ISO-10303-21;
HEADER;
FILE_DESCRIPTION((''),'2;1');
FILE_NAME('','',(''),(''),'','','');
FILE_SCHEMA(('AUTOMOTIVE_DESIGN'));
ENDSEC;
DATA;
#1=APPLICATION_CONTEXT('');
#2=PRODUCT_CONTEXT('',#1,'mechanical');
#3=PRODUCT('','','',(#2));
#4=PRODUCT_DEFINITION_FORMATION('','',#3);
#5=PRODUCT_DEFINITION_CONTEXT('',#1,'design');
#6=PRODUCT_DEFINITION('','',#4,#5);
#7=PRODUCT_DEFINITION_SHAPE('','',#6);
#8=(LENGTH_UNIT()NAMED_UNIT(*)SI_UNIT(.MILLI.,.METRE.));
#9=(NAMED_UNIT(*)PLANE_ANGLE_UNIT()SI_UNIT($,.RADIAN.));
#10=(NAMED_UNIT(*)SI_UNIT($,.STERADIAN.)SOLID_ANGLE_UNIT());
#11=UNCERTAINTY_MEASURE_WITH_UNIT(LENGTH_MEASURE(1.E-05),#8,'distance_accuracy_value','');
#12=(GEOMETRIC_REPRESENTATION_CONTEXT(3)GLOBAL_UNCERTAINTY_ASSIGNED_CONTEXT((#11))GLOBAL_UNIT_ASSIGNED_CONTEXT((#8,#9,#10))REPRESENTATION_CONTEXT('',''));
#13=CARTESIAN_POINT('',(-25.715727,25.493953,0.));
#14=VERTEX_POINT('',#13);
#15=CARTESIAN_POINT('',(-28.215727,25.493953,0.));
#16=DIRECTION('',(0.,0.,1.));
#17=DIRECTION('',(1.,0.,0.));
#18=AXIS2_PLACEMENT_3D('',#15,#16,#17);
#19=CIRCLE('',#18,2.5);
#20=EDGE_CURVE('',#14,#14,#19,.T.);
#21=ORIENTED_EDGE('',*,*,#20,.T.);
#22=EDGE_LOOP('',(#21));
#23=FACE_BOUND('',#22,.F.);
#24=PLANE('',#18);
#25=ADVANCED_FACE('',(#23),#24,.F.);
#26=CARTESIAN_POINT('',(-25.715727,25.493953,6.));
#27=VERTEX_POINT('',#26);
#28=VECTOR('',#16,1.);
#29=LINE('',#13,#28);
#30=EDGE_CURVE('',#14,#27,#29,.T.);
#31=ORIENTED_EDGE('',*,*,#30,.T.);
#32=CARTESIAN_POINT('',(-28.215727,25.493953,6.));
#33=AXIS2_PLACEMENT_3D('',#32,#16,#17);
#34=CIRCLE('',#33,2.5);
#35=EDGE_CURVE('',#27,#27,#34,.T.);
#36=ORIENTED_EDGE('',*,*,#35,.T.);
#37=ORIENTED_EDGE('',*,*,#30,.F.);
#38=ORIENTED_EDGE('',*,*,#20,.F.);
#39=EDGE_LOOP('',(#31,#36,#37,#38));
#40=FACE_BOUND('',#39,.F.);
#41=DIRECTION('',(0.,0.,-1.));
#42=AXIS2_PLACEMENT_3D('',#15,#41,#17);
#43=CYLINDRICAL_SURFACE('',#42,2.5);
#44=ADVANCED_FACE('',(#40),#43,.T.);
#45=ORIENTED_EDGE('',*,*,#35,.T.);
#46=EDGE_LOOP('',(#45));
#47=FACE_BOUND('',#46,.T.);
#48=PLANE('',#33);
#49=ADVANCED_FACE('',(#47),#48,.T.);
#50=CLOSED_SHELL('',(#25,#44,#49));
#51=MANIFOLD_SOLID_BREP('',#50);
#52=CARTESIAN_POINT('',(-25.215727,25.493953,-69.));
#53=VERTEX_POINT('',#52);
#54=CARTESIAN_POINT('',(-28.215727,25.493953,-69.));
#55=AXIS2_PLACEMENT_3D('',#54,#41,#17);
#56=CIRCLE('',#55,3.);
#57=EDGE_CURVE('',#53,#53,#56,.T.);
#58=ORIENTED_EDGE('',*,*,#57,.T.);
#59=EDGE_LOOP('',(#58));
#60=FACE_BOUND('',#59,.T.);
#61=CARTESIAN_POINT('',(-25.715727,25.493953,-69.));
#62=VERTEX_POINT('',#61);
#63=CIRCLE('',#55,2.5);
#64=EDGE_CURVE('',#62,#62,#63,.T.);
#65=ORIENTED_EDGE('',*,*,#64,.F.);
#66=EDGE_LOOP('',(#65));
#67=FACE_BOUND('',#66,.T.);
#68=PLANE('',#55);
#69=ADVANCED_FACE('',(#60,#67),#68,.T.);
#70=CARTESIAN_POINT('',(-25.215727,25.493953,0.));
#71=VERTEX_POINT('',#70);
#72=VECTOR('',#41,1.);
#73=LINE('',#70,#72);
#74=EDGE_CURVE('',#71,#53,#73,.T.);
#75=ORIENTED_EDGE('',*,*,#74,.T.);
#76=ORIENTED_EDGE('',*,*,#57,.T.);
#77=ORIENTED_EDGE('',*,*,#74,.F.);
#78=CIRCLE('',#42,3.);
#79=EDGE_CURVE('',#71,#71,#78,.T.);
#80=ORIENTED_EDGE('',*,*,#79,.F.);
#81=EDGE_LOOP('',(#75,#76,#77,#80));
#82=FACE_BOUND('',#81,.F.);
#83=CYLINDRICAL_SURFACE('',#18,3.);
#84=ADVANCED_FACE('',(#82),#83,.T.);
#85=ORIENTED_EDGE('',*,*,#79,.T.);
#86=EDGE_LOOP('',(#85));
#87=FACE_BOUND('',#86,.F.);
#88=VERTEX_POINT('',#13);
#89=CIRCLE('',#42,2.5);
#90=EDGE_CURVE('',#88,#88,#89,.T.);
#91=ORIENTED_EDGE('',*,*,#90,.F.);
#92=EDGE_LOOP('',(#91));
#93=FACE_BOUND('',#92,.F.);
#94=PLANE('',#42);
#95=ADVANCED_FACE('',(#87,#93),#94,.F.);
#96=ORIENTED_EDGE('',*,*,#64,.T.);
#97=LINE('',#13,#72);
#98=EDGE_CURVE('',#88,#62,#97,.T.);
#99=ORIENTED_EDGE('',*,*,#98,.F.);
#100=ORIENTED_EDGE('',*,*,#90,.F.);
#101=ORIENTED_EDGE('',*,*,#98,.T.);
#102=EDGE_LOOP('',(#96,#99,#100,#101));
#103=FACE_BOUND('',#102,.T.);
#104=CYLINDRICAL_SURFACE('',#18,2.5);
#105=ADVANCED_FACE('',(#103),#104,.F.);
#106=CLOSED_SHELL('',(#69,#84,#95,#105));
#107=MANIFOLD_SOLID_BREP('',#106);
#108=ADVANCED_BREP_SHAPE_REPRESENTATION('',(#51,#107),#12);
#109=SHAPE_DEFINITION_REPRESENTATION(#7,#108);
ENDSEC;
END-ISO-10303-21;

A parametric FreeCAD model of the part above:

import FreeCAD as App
import Part
import Sketcher

V = App.Vector
Q = App.Units.Quantity

doc = App.newDocument("Part")
params = doc.addObject("Spreadsheet::Sheet", "Params")
for row, (alias, value) in enumerate([
    ("sketch1_diameter", "5 mm"),
    ("pad1_length", "6 mm"),
    ("sketch2_diameter", "6 mm"),
    ("sketch2_diameter2", "5 mm"),
    ("pad2_length", "69 mm"),
], start=1):
    params.set(f"A{row}", alias)
    params.set(f"B{row}", "=" + value)
    params.setAlias(f"B{row}", alias)

body = doc.addObject("PartDesign::Body", "Body")

sketch1 = body.newObject("Sketcher::SketchObject", "Sketch")
sketch1.AttachmentSupport = (doc.getObject("XY_Plane"), [""])
sketch1.MapMode = "FlatFace"
sketch1.addGeometry(Part.Circle(V(-28.215727, 25.493953, 0), V(0, 0, 1), 2.5), False)
sketch1.addConstraint(Sketcher.Constraint("Diameter", 0, Q("5 mm")))
sketch1.addConstraint(Sketcher.Constraint("DistanceX", 0, 3, -1, 1, Q("28.215727 mm")))
sketch1.addConstraint(Sketcher.Constraint("DistanceY", -1, 1, 0, 3, Q("25.493953 mm")))
sketch1.setExpression("Constraints[0]", "Params.sketch1_diameter")
pad1 = body.newObject("PartDesign::Pad", "Pad")
pad1.Profile = sketch1
pad1.setExpression("Length", "Params.pad1_length")
body2 = doc.addObject("PartDesign::Body", "Body001")

sketch2 = body2.newObject("Sketcher::SketchObject", "Sketch001")
sketch2.AttachmentSupport = (doc.getObject("XY_Plane001"), [""])
sketch2.MapMode = "FlatFace"
sketch2.addGeometry(Part.Circle(V(-28.215727, 25.493953, 0), V(0, 0, 1), 3), False)
sketch2.addGeometry(Part.Circle(V(-28.215727, 25.493953, 0), V(0, 0, 1), 2.5), False)
sketch2.addConstraint(Sketcher.Constraint("Coincident", 1, 3, 0, 3))
sketch2.addConstraint(Sketcher.Constraint("Diameter", 0, Q("6 mm")))
sketch2.addConstraint(Sketcher.Constraint("Diameter", 1, Q("5 mm")))
sketch2.addConstraint(Sketcher.Constraint("DistanceX", 0, 3, -1, 1, Q("28.215727 mm")))
sketch2.addConstraint(Sketcher.Constraint("DistanceY", -1, 1, 0, 3, Q("25.493953 mm")))
sketch2.setExpression("Constraints[1]", "Params.sketch2_diameter")
sketch2.setExpression("Constraints[2]", "Params.sketch2_diameter2")
pad2 = body2.newObject("PartDesign::Pad", "Pad001")
pad2.Profile = sketch2
pad2.setExpression("Length", "Params.pad2_length")
pad2.Reversed = True

doc.recompute()
